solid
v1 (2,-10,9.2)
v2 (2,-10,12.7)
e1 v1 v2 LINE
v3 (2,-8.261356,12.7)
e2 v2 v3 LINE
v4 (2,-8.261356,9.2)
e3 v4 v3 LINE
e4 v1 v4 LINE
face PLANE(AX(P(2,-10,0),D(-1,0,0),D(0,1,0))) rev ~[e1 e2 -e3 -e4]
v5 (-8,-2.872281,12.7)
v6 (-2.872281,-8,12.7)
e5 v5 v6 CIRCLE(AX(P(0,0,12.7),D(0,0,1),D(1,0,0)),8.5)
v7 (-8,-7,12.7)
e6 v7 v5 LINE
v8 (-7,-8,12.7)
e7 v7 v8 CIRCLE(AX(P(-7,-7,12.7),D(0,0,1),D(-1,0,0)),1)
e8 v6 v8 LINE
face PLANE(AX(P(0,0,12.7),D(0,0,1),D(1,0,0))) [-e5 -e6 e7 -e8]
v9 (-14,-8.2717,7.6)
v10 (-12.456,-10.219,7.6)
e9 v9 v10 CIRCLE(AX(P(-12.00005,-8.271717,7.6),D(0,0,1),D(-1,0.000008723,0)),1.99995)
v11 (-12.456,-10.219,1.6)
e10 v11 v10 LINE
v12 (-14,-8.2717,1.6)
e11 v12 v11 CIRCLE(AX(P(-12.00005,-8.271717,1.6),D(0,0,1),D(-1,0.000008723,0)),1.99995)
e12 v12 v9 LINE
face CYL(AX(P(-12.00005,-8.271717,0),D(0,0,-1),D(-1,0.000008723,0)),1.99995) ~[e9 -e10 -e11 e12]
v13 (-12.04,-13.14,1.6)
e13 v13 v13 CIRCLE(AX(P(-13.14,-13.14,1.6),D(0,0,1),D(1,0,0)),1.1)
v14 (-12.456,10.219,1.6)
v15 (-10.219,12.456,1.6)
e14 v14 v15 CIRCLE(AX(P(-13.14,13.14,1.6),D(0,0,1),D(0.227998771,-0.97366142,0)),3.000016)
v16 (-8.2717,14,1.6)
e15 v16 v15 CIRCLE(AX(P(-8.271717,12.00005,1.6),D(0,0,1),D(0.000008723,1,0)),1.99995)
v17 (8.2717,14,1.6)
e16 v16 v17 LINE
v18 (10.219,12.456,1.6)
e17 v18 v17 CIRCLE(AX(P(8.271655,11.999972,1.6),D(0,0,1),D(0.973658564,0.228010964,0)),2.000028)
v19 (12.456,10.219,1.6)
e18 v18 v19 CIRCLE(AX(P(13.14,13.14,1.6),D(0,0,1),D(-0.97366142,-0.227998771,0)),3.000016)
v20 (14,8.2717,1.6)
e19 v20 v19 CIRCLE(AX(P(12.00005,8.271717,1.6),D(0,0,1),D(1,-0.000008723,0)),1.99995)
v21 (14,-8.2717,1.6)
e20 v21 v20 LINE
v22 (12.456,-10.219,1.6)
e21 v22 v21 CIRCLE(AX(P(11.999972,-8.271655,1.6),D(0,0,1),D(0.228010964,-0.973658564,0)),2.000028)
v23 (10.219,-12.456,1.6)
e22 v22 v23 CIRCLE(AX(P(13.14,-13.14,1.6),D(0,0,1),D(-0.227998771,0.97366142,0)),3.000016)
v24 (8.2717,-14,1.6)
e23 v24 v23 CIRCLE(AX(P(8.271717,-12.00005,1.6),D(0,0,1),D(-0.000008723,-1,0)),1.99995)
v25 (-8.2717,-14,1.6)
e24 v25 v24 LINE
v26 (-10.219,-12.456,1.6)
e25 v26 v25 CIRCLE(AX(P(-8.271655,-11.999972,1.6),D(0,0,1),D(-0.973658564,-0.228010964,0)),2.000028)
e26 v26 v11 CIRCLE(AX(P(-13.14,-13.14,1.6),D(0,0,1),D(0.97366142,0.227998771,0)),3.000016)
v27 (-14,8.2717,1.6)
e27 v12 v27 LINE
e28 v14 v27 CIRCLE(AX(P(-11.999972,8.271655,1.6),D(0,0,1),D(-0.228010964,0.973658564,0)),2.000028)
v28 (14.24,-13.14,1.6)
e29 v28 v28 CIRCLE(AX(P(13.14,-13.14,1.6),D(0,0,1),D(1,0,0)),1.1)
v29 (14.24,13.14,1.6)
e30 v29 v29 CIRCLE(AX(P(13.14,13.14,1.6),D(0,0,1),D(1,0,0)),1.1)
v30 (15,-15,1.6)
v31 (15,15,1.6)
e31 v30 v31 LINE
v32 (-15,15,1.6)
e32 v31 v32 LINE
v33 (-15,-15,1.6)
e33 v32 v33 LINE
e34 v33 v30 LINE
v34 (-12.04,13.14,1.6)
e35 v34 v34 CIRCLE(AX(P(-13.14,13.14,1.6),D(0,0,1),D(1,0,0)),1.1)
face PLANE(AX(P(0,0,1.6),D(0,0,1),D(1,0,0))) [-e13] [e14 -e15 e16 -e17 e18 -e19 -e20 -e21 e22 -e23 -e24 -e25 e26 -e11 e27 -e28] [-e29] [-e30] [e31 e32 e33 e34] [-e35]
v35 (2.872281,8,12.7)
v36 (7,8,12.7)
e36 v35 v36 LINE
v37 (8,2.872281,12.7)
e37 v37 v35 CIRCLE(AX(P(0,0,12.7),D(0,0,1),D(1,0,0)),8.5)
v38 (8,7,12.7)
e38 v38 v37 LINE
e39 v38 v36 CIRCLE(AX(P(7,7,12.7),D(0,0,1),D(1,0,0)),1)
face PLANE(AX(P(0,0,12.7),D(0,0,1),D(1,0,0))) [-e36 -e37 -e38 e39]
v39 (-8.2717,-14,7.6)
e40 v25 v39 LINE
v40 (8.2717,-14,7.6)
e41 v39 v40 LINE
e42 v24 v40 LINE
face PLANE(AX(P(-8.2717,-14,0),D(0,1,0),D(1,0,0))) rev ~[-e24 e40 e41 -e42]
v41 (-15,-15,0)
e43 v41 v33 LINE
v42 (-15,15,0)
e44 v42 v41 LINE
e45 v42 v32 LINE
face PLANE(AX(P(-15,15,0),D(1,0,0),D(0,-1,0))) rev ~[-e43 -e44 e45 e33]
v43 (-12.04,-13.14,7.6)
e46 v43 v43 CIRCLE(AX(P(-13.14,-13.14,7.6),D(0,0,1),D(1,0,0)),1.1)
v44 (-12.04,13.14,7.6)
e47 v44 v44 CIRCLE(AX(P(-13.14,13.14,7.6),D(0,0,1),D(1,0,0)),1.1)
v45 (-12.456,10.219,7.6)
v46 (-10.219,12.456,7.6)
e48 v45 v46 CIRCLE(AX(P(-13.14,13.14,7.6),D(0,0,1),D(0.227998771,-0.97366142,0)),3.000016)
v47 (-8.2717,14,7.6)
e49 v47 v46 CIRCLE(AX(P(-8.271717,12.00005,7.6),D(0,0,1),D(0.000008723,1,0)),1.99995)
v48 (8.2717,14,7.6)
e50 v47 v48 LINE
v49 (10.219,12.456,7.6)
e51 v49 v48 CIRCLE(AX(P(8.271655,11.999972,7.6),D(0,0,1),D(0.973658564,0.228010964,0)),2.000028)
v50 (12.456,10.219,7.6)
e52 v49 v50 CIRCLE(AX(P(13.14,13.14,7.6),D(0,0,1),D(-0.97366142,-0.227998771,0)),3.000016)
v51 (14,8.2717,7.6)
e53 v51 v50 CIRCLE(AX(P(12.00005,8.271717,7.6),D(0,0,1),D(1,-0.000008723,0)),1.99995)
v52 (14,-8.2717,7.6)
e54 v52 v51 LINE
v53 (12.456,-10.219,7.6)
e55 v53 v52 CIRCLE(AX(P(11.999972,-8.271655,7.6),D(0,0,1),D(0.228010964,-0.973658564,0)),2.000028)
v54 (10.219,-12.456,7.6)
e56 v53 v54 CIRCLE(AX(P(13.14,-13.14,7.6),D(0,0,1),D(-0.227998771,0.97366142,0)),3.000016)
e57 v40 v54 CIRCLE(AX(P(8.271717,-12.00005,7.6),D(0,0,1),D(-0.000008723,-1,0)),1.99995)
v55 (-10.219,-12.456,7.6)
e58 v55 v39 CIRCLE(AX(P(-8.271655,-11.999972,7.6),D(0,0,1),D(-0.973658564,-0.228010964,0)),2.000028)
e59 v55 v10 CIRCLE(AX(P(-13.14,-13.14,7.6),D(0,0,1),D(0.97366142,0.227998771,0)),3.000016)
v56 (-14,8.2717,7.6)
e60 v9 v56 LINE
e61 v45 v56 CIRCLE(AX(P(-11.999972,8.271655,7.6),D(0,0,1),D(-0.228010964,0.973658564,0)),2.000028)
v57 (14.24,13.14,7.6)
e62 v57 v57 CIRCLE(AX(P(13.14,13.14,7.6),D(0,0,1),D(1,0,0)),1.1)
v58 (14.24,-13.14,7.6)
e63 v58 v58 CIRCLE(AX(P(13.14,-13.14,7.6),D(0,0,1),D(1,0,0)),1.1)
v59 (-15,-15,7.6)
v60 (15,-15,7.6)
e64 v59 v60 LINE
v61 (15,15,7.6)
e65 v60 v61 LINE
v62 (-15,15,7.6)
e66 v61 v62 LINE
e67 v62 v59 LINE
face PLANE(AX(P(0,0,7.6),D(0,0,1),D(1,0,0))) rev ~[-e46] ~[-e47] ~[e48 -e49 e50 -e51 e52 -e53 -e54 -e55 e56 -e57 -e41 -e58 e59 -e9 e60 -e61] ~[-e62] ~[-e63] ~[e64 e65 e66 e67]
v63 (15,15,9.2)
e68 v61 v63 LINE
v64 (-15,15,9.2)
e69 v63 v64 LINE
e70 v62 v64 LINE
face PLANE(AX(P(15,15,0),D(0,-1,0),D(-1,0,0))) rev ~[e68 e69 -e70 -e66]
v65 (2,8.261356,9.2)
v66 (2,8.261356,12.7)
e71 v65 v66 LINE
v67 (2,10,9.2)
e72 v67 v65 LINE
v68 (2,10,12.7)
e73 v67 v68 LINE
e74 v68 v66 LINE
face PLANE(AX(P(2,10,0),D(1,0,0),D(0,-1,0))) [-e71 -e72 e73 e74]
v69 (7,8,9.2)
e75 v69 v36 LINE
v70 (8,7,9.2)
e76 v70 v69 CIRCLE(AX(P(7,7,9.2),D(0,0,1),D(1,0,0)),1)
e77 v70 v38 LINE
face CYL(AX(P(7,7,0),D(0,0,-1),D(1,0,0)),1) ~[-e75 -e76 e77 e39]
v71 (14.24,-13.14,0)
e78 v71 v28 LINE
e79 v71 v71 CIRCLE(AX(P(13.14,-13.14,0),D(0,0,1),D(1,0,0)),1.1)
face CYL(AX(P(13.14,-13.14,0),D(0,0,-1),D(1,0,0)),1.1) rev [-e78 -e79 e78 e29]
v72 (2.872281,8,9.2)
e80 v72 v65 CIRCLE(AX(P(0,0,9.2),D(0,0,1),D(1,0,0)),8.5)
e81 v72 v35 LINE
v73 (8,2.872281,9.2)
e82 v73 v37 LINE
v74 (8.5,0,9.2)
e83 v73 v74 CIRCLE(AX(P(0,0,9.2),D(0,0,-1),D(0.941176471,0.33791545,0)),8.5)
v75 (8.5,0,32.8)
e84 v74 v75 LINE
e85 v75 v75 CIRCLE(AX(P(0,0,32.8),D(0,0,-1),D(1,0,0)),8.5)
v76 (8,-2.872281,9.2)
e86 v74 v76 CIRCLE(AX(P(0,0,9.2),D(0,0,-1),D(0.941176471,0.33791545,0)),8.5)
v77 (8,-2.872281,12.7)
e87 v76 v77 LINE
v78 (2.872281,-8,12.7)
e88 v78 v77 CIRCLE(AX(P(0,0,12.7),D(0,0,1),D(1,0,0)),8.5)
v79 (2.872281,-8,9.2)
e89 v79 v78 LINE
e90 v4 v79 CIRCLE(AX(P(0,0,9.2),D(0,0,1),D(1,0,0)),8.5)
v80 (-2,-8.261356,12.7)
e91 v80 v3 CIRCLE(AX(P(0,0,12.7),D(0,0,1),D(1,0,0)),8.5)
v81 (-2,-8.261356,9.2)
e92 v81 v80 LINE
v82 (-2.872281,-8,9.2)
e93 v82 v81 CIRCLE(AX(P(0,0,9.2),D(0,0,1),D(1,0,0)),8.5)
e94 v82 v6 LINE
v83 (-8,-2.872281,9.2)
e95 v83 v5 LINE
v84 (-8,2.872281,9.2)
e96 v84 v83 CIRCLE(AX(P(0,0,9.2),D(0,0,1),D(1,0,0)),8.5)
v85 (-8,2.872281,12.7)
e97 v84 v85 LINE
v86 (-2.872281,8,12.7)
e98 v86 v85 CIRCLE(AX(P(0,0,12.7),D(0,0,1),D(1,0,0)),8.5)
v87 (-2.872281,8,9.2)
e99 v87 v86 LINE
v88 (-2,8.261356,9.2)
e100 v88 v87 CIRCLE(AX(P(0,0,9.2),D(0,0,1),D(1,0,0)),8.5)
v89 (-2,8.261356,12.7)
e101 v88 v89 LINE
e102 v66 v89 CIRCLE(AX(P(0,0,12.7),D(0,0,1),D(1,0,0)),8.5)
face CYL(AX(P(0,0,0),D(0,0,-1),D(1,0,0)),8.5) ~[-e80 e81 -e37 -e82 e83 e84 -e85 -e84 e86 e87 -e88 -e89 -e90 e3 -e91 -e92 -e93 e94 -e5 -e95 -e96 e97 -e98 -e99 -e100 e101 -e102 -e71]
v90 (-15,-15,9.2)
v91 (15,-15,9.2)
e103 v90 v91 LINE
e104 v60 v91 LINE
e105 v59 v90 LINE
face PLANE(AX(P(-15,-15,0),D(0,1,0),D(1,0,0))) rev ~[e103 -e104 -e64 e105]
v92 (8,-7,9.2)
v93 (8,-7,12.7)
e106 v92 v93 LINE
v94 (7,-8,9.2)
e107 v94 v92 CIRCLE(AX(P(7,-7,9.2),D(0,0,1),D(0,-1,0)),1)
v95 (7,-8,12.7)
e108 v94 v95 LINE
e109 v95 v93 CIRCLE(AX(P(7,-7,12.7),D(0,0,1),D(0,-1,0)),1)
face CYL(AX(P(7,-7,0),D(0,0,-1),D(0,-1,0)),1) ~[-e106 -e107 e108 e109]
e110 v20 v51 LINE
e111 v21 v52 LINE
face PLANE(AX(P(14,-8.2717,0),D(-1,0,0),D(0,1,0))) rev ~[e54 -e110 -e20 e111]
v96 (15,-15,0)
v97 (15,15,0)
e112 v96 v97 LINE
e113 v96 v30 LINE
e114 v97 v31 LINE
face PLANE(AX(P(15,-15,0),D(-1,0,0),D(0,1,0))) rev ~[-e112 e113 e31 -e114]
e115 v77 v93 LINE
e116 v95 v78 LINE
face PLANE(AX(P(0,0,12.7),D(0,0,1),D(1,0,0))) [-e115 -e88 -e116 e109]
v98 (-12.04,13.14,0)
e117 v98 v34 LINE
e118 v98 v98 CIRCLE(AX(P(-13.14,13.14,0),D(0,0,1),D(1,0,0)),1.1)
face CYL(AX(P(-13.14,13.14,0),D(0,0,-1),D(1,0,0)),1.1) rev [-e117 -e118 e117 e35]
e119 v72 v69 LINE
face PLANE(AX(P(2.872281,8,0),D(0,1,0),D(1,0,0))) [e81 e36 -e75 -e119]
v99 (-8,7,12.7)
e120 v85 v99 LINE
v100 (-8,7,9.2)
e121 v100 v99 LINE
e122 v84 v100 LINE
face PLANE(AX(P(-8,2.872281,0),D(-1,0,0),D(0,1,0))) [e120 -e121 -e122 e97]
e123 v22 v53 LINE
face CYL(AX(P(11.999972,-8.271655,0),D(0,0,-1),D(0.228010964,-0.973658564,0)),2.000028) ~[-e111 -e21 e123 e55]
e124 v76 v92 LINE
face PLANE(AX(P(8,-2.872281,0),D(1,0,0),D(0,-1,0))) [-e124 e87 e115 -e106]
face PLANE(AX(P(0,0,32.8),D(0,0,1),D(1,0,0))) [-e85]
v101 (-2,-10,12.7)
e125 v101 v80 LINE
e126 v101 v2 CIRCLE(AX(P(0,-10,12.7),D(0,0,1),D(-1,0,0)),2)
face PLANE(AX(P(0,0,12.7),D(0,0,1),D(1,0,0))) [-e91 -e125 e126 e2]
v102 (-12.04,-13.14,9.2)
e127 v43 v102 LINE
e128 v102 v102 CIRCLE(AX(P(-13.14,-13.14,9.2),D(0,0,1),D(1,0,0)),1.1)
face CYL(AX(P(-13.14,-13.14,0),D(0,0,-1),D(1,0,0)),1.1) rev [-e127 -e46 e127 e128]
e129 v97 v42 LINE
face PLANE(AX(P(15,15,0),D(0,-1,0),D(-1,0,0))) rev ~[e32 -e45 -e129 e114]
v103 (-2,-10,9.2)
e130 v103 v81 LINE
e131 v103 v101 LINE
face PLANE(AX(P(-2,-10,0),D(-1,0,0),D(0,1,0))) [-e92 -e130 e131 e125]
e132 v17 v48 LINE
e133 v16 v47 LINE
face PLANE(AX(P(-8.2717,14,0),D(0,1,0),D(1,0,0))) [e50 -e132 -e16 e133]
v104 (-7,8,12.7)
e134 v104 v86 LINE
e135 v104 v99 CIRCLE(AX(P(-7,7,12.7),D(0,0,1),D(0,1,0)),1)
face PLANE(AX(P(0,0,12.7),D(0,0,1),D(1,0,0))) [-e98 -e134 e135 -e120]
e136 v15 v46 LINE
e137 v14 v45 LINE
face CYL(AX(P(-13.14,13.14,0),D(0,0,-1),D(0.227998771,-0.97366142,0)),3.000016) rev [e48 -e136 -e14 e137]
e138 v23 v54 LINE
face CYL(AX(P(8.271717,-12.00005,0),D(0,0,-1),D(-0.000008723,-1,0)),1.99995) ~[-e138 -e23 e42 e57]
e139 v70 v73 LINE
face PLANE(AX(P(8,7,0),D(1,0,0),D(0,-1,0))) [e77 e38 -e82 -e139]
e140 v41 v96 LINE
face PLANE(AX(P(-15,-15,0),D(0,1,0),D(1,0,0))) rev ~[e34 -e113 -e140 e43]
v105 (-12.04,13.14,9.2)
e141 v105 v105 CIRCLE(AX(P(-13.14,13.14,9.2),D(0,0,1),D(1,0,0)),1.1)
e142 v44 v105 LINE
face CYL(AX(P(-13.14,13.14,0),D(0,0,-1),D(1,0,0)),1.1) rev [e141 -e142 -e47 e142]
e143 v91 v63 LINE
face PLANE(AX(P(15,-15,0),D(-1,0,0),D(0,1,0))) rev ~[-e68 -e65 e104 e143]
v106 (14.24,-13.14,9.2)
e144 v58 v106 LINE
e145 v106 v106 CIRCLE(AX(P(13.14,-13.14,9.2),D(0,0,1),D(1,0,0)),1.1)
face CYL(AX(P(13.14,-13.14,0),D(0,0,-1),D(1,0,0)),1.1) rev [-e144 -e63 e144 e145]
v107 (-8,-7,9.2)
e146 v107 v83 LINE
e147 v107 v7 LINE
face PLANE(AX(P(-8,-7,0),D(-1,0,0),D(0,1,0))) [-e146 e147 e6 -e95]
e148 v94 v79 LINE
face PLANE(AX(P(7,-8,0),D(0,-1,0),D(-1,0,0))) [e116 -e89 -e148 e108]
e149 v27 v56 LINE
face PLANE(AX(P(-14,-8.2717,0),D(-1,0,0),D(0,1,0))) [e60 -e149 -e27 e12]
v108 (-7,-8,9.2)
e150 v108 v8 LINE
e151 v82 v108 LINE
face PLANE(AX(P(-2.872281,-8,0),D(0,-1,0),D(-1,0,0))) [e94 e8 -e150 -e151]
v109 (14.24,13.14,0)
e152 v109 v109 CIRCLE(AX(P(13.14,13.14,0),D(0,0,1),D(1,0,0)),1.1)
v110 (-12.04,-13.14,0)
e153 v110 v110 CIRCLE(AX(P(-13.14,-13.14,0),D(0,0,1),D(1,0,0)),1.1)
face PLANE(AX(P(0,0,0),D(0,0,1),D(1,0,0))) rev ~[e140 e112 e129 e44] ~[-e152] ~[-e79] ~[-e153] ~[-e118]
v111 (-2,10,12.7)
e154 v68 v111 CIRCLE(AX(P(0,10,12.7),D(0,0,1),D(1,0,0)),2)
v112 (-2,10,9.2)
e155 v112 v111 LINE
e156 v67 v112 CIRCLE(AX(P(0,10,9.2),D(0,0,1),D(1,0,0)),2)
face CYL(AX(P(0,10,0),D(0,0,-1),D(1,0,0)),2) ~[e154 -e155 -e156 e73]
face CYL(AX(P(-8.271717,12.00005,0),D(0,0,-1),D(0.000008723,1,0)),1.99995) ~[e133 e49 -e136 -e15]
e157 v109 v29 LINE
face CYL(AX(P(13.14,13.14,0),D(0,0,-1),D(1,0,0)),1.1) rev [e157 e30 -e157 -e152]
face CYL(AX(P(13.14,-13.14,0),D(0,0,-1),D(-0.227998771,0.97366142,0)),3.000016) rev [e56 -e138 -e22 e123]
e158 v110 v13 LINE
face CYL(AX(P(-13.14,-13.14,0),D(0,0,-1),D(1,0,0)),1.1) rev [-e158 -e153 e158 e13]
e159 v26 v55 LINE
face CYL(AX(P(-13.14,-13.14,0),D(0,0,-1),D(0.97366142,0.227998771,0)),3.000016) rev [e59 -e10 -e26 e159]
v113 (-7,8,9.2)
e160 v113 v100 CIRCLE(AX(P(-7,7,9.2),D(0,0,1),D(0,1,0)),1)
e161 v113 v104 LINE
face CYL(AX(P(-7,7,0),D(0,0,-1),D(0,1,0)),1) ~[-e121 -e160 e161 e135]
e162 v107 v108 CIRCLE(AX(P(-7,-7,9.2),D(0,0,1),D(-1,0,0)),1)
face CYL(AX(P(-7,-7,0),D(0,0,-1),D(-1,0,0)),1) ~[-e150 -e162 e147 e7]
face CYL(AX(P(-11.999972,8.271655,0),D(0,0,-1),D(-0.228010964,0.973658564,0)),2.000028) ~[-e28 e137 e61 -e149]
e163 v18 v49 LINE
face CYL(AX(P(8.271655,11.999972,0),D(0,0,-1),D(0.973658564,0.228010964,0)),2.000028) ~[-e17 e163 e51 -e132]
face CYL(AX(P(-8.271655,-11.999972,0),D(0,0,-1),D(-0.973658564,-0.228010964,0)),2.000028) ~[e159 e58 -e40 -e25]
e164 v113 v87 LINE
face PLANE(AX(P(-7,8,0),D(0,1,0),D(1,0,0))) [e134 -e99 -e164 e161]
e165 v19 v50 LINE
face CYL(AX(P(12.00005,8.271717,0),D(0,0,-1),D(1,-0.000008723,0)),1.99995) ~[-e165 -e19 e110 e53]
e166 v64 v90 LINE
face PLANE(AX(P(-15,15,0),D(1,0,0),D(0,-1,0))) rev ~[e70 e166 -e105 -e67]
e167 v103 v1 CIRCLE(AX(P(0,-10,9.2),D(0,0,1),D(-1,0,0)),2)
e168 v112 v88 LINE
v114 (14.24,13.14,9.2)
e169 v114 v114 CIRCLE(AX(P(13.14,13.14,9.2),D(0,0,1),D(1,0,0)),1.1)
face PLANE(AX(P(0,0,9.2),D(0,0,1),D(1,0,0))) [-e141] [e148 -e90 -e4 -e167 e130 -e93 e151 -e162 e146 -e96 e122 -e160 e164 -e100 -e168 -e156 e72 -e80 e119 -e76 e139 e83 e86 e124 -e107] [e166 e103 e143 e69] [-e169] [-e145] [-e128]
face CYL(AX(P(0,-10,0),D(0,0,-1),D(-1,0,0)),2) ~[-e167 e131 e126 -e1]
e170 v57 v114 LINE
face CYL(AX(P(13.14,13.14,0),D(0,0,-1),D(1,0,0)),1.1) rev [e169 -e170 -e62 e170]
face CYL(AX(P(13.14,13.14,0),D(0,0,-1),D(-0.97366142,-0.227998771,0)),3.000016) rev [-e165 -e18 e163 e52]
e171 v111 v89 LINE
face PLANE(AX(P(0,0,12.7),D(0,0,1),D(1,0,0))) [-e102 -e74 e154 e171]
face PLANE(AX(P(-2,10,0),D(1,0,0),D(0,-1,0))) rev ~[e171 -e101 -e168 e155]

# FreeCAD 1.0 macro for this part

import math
import FreeCAD as App
import Part
import Sketcher

V = App.Vector
Q = App.Units.Quantity


def add_polygon(sketch, points):
    """Adds a closed chain of lines whose ends are joined by coincident constraints."""
    first, n = sketch.GeometryCount, len(points)
    for a, b in zip(points, points[1:] + points[:1]):
        sketch.addGeometry(Part.LineSegment(App.Vector(*a, 0), App.Vector(*b, 0)), False)
    for i in range(n):
        sketch.addConstraint(Sketcher.Constraint("Coincident", first + i, 2, first + (i + 1) % n, 1))

doc = App.newDocument("Part")
body = doc.addObject("PartDesign::Body", "Body")

sketch1 = doc.addObject("Sketcher::SketchObject", "Sketch")
body.addObject(sketch1)
sketch1.AttachmentSupport = (doc.XY_Plane, [""])
sketch1.MapMode = "FlatFace"
add_polygon(sketch1, [(-15, 15), (-15, -15), (15, -15), (15, 15)])
sketch1.addGeometry(Part.Circle(V(-13.1, -13.1, 0), V(0, 0, 1), 1.1), False)
sketch1.addGeometry(Part.Circle(V(13.1, -13.1, 0), V(0, 0, 1), 1.1), False)
sketch1.addGeometry(Part.Circle(V(-13.1, 13.1, 0), V(0, 0, 1), 1.1), False)
sketch1.addGeometry(Part.Circle(V(13.1, 13.1, 0), V(0, 0, 1), 1.1), False)
sketch1.addGeometry(Part.LineSegment(V(-7, 8, 0), V(-2.9, 8, 0)), False)
sketch1.addGeometry(Part.ArcOfCircle(Part.Circle(V(0, 0, 0), V(0, 0, 1), 8.5), math.radians(103.61), math.radians(109.75)), False)
sketch1.addGeometry(Part.LineSegment(V(-2, 8.3, 0), V(-2, 10, 0)), False)
sketch1.addGeometry(Part.ArcOfCircle(Part.Circle(V(0, 10, 0), V(0, 0, 1), 2), math.radians(0), math.radians(180)), False)
sketch1.addGeometry(Part.LineSegment(V(2, 10, 0), V(2, 8.3, 0)), False)
sketch1.addGeometry(Part.ArcOfCircle(Part.Circle(V(0, 0, 0), V(0, 0, 1), 8.5), math.radians(70.25), math.radians(76.39)), False)
sketch1.addGeometry(Part.LineSegment(V(2.9, 8, 0), V(7, 8, 0)), False)
sketch1.addGeometry(Part.ArcOfCircle(Part.Circle(V(7, 7, 0), V(0, 0, 1), 1), math.radians(0), math.radians(90)), False)
sketch1.addGeometry(Part.LineSegment(V(8, 7, 0), V(8, 2.9, 0)), False)
sketch1.addGeometry(Part.ArcOfCircle(Part.Circle(V(0, 0, 0), V(0, 0, 1), 8.5), math.radians(-20), math.radians(20)), False)
sketch1.addGeometry(Part.LineSegment(V(8, -2.9, 0), V(8, -7, 0)), False)
sketch1.addGeometry(Part.ArcOfCircle(Part.Circle(V(7, -7, 0), V(0, 0, 1), 1), math.radians(-90), math.radians(0)), False)
sketch1.addGeometry(Part.LineSegment(V(7, -8, 0), V(2.9, -8, 0)), False)
sketch1.addGeometry(Part.ArcOfCircle(Part.Circle(V(0, 0, 0), V(0, 0, 1), 8.5), math.radians(-76.39), math.radians(-70.25)), False)
sketch1.addGeometry(Part.LineSegment(V(2, -8.3, 0), V(2, -10, 0)), False)
sketch1.addGeometry(Part.ArcOfCircle(Part.Circle(V(0, -10, 0), V(0, 0, 1), 2), math.radians(180), math.radians(360)), False)
sketch1.addGeometry(Part.LineSegment(V(-2, -10, 0), V(-2, -8.3, 0)), False)
sketch1.addGeometry(Part.ArcOfCircle(Part.Circle(V(0, 0, 0), V(0, 0, 1), 8.5), math.radians(-109.75), math.radians(-103.61)), False)
sketch1.addGeometry(Part.LineSegment(V(-2.9, -8, 0), V(-7, -8, 0)), False)
sketch1.addGeometry(Part.ArcOfCircle(Part.Circle(V(-7, -7, 0), V(0, 0, 1), 1), math.radians(180), math.radians(270)), False)
sketch1.addGeometry(Part.LineSegment(V(-8, -7, 0), V(-8, -2.9, 0)), False)
sketch1.addGeometry(Part.ArcOfCircle(Part.Circle(V(0, 0, 0), V(0, 0, 1), 8.5), math.radians(160), math.radians(200)), False)
sketch1.addGeometry(Part.LineSegment(V(-8, 2.9, 0), V(-8, 7, 0)), False)
sketch1.addGeometry(Part.ArcOfCircle(Part.Circle(V(-7, 7, 0), V(0, 0, 1), 1), math.radians(90), math.radians(180)), False)
sketch1.addConstraint(Sketcher.Constraint("Coincident", 8, 2, 9, 2))
sketch1.addConstraint(Sketcher.Constraint("Coincident", 9, 1, 10, 1))
sketch1.addConstraint(Sketcher.Constraint("Tangent", 10, 2, 11, 2))
sketch1.addConstraint(Sketcher.Constraint("Tangent", 11, 1, 12, 1))
sketch1.addConstraint(Sketcher.Constraint("Coincident", 12, 2, 13, 2))
sketch1.addConstraint(Sketcher.Constraint("Coincident", 13, 1, 14, 1))
sketch1.addConstraint(Sketcher.Constraint("Tangent", 14, 2, 15, 2))
sketch1.addConstraint(Sketcher.Constraint("Tangent", 15, 1, 16, 1))
sketch1.addConstraint(Sketcher.Constraint("Coincident", 16, 2, 17, 2))
sketch1.addConstraint(Sketcher.Constraint("Coincident", 17, 1, 18, 1))
sketch1.addConstraint(Sketcher.Constraint("Tangent", 18, 2, 19, 2))
sketch1.addConstraint(Sketcher.Constraint("Tangent", 19, 1, 20, 1))
sketch1.addConstraint(Sketcher.Constraint("Coincident", 20, 2, 21, 2))
sketch1.addConstraint(Sketcher.Constraint("Coincident", 21, 1, 22, 1))
sketch1.addConstraint(Sketcher.Constraint("Tangent", 22, 2, 23, 2))
sketch1.addConstraint(Sketcher.Constraint("Tangent", 23, 1, 24, 1))
sketch1.addConstraint(Sketcher.Constraint("Coincident", 24, 2, 25, 2))
sketch1.addConstraint(Sketcher.Constraint("Coincident", 25, 1, 26, 1))
sketch1.addConstraint(Sketcher.Constraint("Tangent", 26, 2, 27, 2))
sketch1.addConstraint(Sketcher.Constraint("Tangent", 27, 1, 28, 1))
sketch1.addConstraint(Sketcher.Constraint("Coincident", 28, 2, 29, 2))
sketch1.addConstraint(Sketcher.Constraint("Coincident", 29, 1, 30, 1))
sketch1.addConstraint(Sketcher.Constraint("Tangent", 30, 2, 31, 2))
sketch1.addConstraint(Sketcher.Constraint("Tangent", 31, 1, 8, 1))
sketch1.addConstraint(Sketcher.Constraint("Vertical", 0))
sketch1.addConstraint(Sketcher.Constraint("Horizontal", 1))
sketch1.addConstraint(Sketcher.Constraint("Vertical", 2))
sketch1.addConstraint(Sketcher.Constraint("Horizontal", 3))
sketch1.addConstraint(Sketcher.Constraint("Horizontal", 8))
sketch1.addConstraint(Sketcher.Constraint("Vertical", 10))
sketch1.addConstraint(Sketcher.Constraint("Vertical", 12))
sketch1.addConstraint(Sketcher.Constraint("Horizontal", 14))
sketch1.addConstraint(Sketcher.Constraint("Vertical", 16))
sketch1.addConstraint(Sketcher.Constraint("Vertical", 18))
sketch1.addConstraint(Sketcher.Constraint("Horizontal", 20))
sketch1.addConstraint(Sketcher.Constraint("Vertical", 22))
sketch1.addConstraint(Sketcher.Constraint("Vertical", 24))
sketch1.addConstraint(Sketcher.Constraint("Horizontal", 26))
sketch1.addConstraint(Sketcher.Constraint("Vertical", 28))
sketch1.addConstraint(Sketcher.Constraint("Vertical", 30))
sketch1.addConstraint(Sketcher.Constraint("Coincident", 9, 3, -1, 1))
sketch1.addConstraint(Sketcher.Constraint("Coincident", 13, 3, -1, 1))
sketch1.addConstraint(Sketcher.Constraint("Coincident", 17, 3, -1, 1))
sketch1.addConstraint(Sketcher.Constraint("Coincident", 21, 3, -1, 1))
sketch1.addConstraint(Sketcher.Constraint("Coincident", 25, 3, -1, 1))
sketch1.addConstraint(Sketcher.Constraint("Coincident", 29, 3, -1, 1))
sketch1.addConstraint(Sketcher.Constraint("Equal", 4, 5))
sketch1.addConstraint(Sketcher.Constraint("Equal", 5, 6))
sketch1.addConstraint(Sketcher.Constraint("Equal", 6, 7))
sketch1.addConstraint(Sketcher.Constraint("Equal", 9, 13))
sketch1.addConstraint(Sketcher.Constraint("Equal", 13, 17))
sketch1.addConstraint(Sketcher.Constraint("Equal", 15, 19))
sketch1.addConstraint(Sketcher.Constraint("Equal", 17, 21))
sketch1.addConstraint(Sketcher.Constraint("Equal", 11, 23))
sketch1.addConstraint(Sketcher.Constraint("Equal", 21, 25))
sketch1.addConstraint(Sketcher.Constraint("Equal", 19, 27))
sketch1.addConstraint(Sketcher.Constraint("Equal", 25, 29))
sketch1.addConstraint(Sketcher.Constraint("Equal", 27, 31))
sketch1.addConstraint(Sketcher.Constraint("Symmetric", 5, 3, 6, 3, -1, 1))
sketch1.addConstraint(Sketcher.Constraint("Symmetric", 4, 3, 7, 3, -1, 1))
sketch1.addConstraint(Sketcher.Constraint("Symmetric", 11, 3, 23, 3, -1, 1))
sketch1.addConstraint(Sketcher.Constraint("Symmetric", 15, 3, 27, 3, -1, 1))
sketch1.addConstraint(Sketcher.Constraint("Symmetric", 19, 3, 31, 3, -1, 1))
sketch1.addConstraint(Sketcher.Constraint("Symmetric", 0, 2, 2, 2, -1, 1))
sketch1.addConstraint(Sketcher.Constraint("Symmetric", 4, 3, 5, 3, -2))
sketch1.addConstraint(Sketcher.Constraint("Symmetric", 19, 3, 27, 3, -2))
sketch1.addConstraint(Sketcher.Constraint("PointOnObject", 11, 3, -2))
sketch1.addConstraint(Sketcher.Constraint("Equal", 3, 0))
sketch1.addConstraint(Sketcher.Constraint("Equal", 26, 16))
sketch1.addConstraint(Sketcher.Constraint("Radius", 11, Q("2 mm")))
sketch1.addConstraint(Sketcher.Constraint("Radius", 15, Q("1 mm")))
sketch1.addConstraint(Sketcher.Constraint("Diameter", 4, Q("2.2 mm")))
sketch1.addConstraint(Sketcher.Constraint("Radius", 9, Q("8.5 mm")))
sketch1.addConstraint(Sketcher.Constraint("DistanceX", 1, 1, 1, 2, Q("30 mm")))
sketch1.addConstraint(Sketcher.Constraint("DistanceY", 15, 3, 11, 3, Q("3 mm")))
sketch1.addConstraint(Sketcher.Constraint("DistanceX", 4, 3, 5, 3, Q("26.28 mm")))
sketch1.addConstraint(Sketcher.Constraint("DistanceY", 4, 3, 6, 3, Q("26.28 mm")))
sketch1.addConstraint(Sketcher.Constraint("DistanceY", -1, 1, 11, 3, Q("10 mm")))
pad1 = doc.addObject("PartDesign::Pad", "Pad")
body.addObject(pad1)
pad1.Profile = sketch1
pad1.Length = 9.2

sketch2 = doc.addObject("Sketcher::SketchObject", "Sketch001")
body.addObject(sketch2)
sketch2.AttachmentSupport = (doc.XY_Plane, [""])
sketch2.MapMode = "FlatFace"
add_polygon(sketch2, [(-15, 15), (-15, -15), (15, -15), (15, 15)])
sketch2.addGeometry(Part.Circle(V(-13.1, -13.1, 0), V(0, 0, 1), 1.1), False)
sketch2.addGeometry(Part.Circle(V(13.1, -13.1, 0), V(0, 0, 1), 1.1), False)
sketch2.addGeometry(Part.Circle(V(-13.1, 13.1, 0), V(0, 0, 1), 1.1), False)
sketch2.addGeometry(Part.ArcOfCircle(Part.Circle(V(-8.3, -12, 0), V(0, 0, 1), 2), math.radians(-167), math.radians(-90)), False)
sketch2.addGeometry(Part.ArcOfCircle(Part.Circle(V(-13.1, -13.1, 0), V(0, 0, 1), 3), math.radians(13), math.radians(77)), False)
sketch2.addGeometry(Part.ArcOfCircle(Part.Circle(V(-12, -8.3, 0), V(0, 0, 1), 2), math.radians(180), math.radians(257)), False)
sketch2.addGeometry(Part.LineSegment(V(-14, -8.3, 0), V(-14, 8.3, 0)), False)
sketch2.addGeometry(Part.ArcOfCircle(Part.Circle(V(-12, 8.3, 0), V(0, 0, 1), 2), math.radians(103), math.radians(180)), False)
sketch2.addGeometry(Part.ArcOfCircle(Part.Circle(V(-13.1, 13.1, 0), V(0, 0, 1), 3), math.radians(-77), math.radians(-13)), False)
sketch2.addGeometry(Part.ArcOfCircle(Part.Circle(V(-8.3, 12, 0), V(0, 0, 1), 2), math.radians(90), math.radians(167)), False)
sketch2.addGeometry(Part.LineSegment(V(-8.3, 14, 0), V(8.3, 14, 0)), False)
sketch2.addGeometry(Part.ArcOfCircle(Part.Circle(V(8.3, 12, 0), V(0, 0, 1), 2), math.radians(13), math.radians(90)), False)
sketch2.addGeometry(Part.ArcOfCircle(Part.Circle(V(13.1, 13.1, 0), V(0, 0, 1), 3), math.radians(-167), math.radians(-103)), False)
sketch2.addGeometry(Part.ArcOfCircle(Part.Circle(V(12, 8.3, 0), V(0, 0, 1), 2), math.radians(0), math.radians(77)), False)
sketch2.addGeometry(Part.LineSegment(V(14, 8.3, 0), V(14, -8.3, 0)), False)
sketch2.addGeometry(Part.ArcOfCircle(Part.Circle(V(12, -8.3, 0), V(0, 0, 1), 2), math.radians(-77), math.radians(0)), False)
sketch2.addGeometry(Part.ArcOfCircle(Part.Circle(V(13.1, -13.1, 0), V(0, 0, 1), 3), math.radians(103), math.radians(167)), False)
sketch2.addGeometry(Part.ArcOfCircle(Part.Circle(V(8.3, -12, 0), V(0, 0, 1), 2), math.radians(-90), math.radians(-13)), False)
sketch2.addGeometry(Part.LineSegment(V(8.3, -14, 0), V(-8.3, -14, 0)), False)
sketch2.addGeometry(Part.Circle(V(13.1, 13.1, 0), V(0, 0, 1), 1.1), False)
sketch2.addConstraint(Sketcher.Constraint("Tangent", 7, 1, 8, 1))
sketch2.addConstraint(Sketcher.Constraint("Tangent", 8, 2, 9, 2))
sketch2.addConstraint(Sketcher.Constraint("Tangent", 9, 1, 10, 1))
sketch2.addConstraint(Sketcher.Constraint("Tangent", 10, 2, 11, 2))
sketch2.addConstraint(Sketcher.Constraint("Tangent", 11, 1, 12, 1))
sketch2.addConstraint(Sketcher.Constraint("Tangent", 12, 2, 13, 2))
sketch2.addConstraint(Sketcher.Constraint("Tangent", 13, 1, 14, 1))
sketch2.addConstraint(Sketcher.Constraint("Tangent", 14, 2, 15, 2))
sketch2.addConstraint(Sketcher.Constraint("Tangent", 15, 1, 16, 1))
sketch2.addConstraint(Sketcher.Constraint("Tangent", 16, 2, 17, 2))
sketch2.addConstraint(Sketcher.Constraint("Tangent", 17, 1, 18, 1))
sketch2.addConstraint(Sketcher.Constraint("Tangent", 18, 2, 19, 2))
sketch2.addConstraint(Sketcher.Constraint("Tangent", 19, 1, 20, 1))
sketch2.addConstraint(Sketcher.Constraint("Tangent", 20, 2, 21, 2))
sketch2.addConstraint(Sketcher.Constraint("Tangent", 21, 1, 22, 1))
sketch2.addConstraint(Sketcher.Constraint("Tangent", 22, 2, 7, 2))
sketch2.addConstraint(Sketcher.Constraint("Vertical", 0))
sketch2.addConstraint(Sketcher.Constraint("Horizontal", 1))
sketch2.addConstraint(Sketcher.Constraint("Vertical", 2))
sketch2.addConstraint(Sketcher.Constraint("Horizontal", 3))
sketch2.addConstraint(Sketcher.Constraint("Vertical", 10))
sketch2.addConstraint(Sketcher.Constraint("Horizontal", 14))
sketch2.addConstraint(Sketcher.Constraint("Vertical", 18))
sketch2.addConstraint(Sketcher.Constraint("Horizontal", 22))
sketch2.addConstraint(Sketcher.Constraint("Coincident", 8, 3, 4, 3))
sketch2.addConstraint(Sketcher.Constraint("Coincident", 12, 3, 6, 3))
sketch2.addConstraint(Sketcher.Constraint("Coincident", 20, 3, 5, 3))
sketch2.addConstraint(Sketcher.Constraint("Coincident", 23, 3, 16, 3))
sketch2.addConstraint(Sketcher.Constraint("Equal", 4, 5))
sketch2.addConstraint(Sketcher.Constraint("Equal", 5, 6))
sketch2.addConstraint(Sketcher.Constraint("Equal", 7, 9))
sketch2.addConstraint(Sketcher.Constraint("Equal", 9, 11))
sketch2.addConstraint(Sketcher.Constraint("Equal", 8, 12))
sketch2.addConstraint(Sketcher.Constraint("Equal", 11, 13))
sketch2.addConstraint(Sketcher.Constraint("Equal", 13, 15))
sketch2.addConstraint(Sketcher.Constraint("Equal", 12, 16))
sketch2.addConstraint(Sketcher.Constraint("Equal", 15, 17))
sketch2.addConstraint(Sketcher.Constraint("Equal", 17, 19))
sketch2.addConstraint(Sketcher.Constraint("Equal", 16, 20))
sketch2.addConstraint(Sketcher.Constraint("Equal", 19, 21))
sketch2.addConstraint(Sketcher.Constraint("Equal", 6, 23))
sketch2.addConstraint(Sketcher.Constraint("Symmetric", 5, 3, 6, 3, -1, 1))
sketch2.addConstraint(Sketcher.Constraint("Symmetric", 7, 3, 15, 3, -1, 1))
sketch2.addConstraint(Sketcher.Constraint("Symmetric", 9, 3, 17, 3, -1, 1))
sketch2.addConstraint(Sketcher.Constraint("Symmetric", 0, 2, 2, 2, -1, 1))
sketch2.addConstraint(Sketcher.Constraint("Symmetric", 4, 3, 5, 3, -2))
sketch2.addConstraint(Sketcher.Constraint("Equal", 3, 0))
sketch2.addConstraint(Sketcher.Constraint("Equal", 22, 10))
sketch2.addConstraint(Sketcher.Constraint("Radius", 7, Q("2 mm")))
sketch2.addConstraint(Sketcher.Constraint("Radius", 8, Q("3 mm")))
sketch2.addConstraint(Sketcher.Constraint("Diameter", 4, Q("2.2 mm")))
sketch2.addConstraint(Sketcher.Constraint("DistanceX", 1, 1, 1, 2, Q("30 mm")))
sketch2.addConstraint(Sketcher.Constraint("DistanceY", 0, 2, 7, 3, Q("3 mm")))
sketch2.addConstraint(Sketcher.Constraint("DistanceX", 0, 2, 9, 3, Q("3 mm")))
sketch2.addConstraint(Sketcher.Constraint("DistanceX", 4, 3, 5, 3, Q("26.28 mm")))
pocket1 = doc.addObject("PartDesign::Pocket", "Pocket")
body.addObject(pocket1)
pocket1.Profile = sketch2
pocket1.Length = 7.6
pocket1.Reversed = True

sketch3 = doc.addObject("Sketcher::SketchObject", "Sketch002")
body.addObject(sketch3)
sketch3.AttachmentSupport = (doc.XY_Plane, [""])
sketch3.MapMode = "FlatFace"
add_polygon(sketch3, [(-15, 15), (-15, -15), (15, -15), (15, 15)])
sketch3.addGeometry(Part.Circle(V(-13.1, -13.1, 0), V(0, 0, 1), 1.1), False)
sketch3.addGeometry(Part.Circle(V(13.1, -13.1, 0), V(0, 0, 1), 1.1), False)
sketch3.addGeometry(Part.Circle(V(-13.1, 13.1, 0), V(0, 0, 1), 1.1), False)
sketch3.addGeometry(Part.ArcOfCircle(Part.Circle(V(-8.3, -12, 0), V(0, 0, 1), 2), math.radians(-167), math.radians(-90)), False)
sketch3.addGeometry(Part.ArcOfCircle(Part.Circle(V(-13.1, -13.1, 0), V(0, 0, 1), 3), math.radians(13), math.radians(77)), False)
sketch3.addGeometry(Part.ArcOfCircle(Part.Circle(V(-12, -8.3, 0), V(0, 0, 1), 2), math.radians(180), math.radians(257)), False)
sketch3.addGeometry(Part.LineSegment(V(-14, -8.3, 0), V(-14, 8.3, 0)), False)
sketch3.addGeometry(Part.ArcOfCircle(Part.Circle(V(-12, 8.3, 0), V(0, 0, 1), 2), math.radians(103), math.radians(180)), False)
sketch3.addGeometry(Part.ArcOfCircle(Part.Circle(V(-13.1, 13.1, 0), V(0, 0, 1), 3), math.radians(-77), math.radians(-13)), False)
sketch3.addGeometry(Part.ArcOfCircle(Part.Circle(V(-8.3, 12, 0), V(0, 0, 1), 2), math.radians(90), math.radians(167)), False)
sketch3.addGeometry(Part.LineSegment(V(-8.3, 14, 0), V(8.3, 14, 0)), False)
sketch3.addGeometry(Part.ArcOfCircle(Part.Circle(V(8.3, 12, 0), V(0, 0, 1), 2), math.radians(13), math.radians(90)), False)
sketch3.addGeometry(Part.ArcOfCircle(Part.Circle(V(13.1, 13.1, 0), V(0, 0, 1), 3), math.radians(-167), math.radians(-103)), False)
sketch3.addGeometry(Part.ArcOfCircle(Part.Circle(V(12, 8.3, 0), V(0, 0, 1), 2), math.radians(0), math.radians(77)), False)
sketch3.addGeometry(Part.LineSegment(V(14, 8.3, 0), V(14, -8.3, 0)), False)
sketch3.addGeometry(Part.ArcOfCircle(Part.Circle(V(12, -8.3, 0), V(0, 0, 1), 2), math.radians(-77), math.radians(0)), False)
sketch3.addGeometry(Part.ArcOfCircle(Part.Circle(V(13.1, -13.1, 0), V(0, 0, 1), 3), math.radians(103), math.radians(167)), False)
sketch3.addGeometry(Part.ArcOfCircle(Part.Circle(V(8.3, -12, 0), V(0, 0, 1), 2), math.radians(-90), math.radians(-13)), False)
sketch3.addGeometry(Part.LineSegment(V(8.3, -14, 0), V(-8.3, -14, 0)), False)
sketch3.addGeometry(Part.Circle(V(13.1, 13.1, 0), V(0, 0, 1), 1.1), False)
sketch3.addConstraint(Sketcher.Constraint("Tangent", 7, 1, 8, 1))
sketch3.addConstraint(Sketcher.Constraint("Tangent", 8, 2, 9, 2))
sketch3.addConstraint(Sketcher.Constraint("Tangent", 9, 1, 10, 1))
sketch3.addConstraint(Sketcher.Constraint("Tangent", 10, 2, 11, 2))
sketch3.addConstraint(Sketcher.Constraint("Tangent", 11, 1, 12, 1))
sketch3.addConstraint(Sketcher.Constraint("Tangent", 12, 2, 13, 2))
sketch3.addConstraint(Sketcher.Constraint("Tangent", 13, 1, 14, 1))
sketch3.addConstraint(Sketcher.Constraint("Tangent", 14, 2, 15, 2))
sketch3.addConstraint(Sketcher.Constraint("Tangent", 15, 1, 16, 1))
sketch3.addConstraint(Sketcher.Constraint("Tangent", 16, 2, 17, 2))
sketch3.addConstraint(Sketcher.Constraint("Tangent", 17, 1, 18, 1))
sketch3.addConstraint(Sketcher.Constraint("Tangent", 18, 2, 19, 2))
sketch3.addConstraint(Sketcher.Constraint("Tangent", 19, 1, 20, 1))
sketch3.addConstraint(Sketcher.Constraint("Tangent", 20, 2, 21, 2))
sketch3.addConstraint(Sketcher.Constraint("Tangent", 21, 1, 22, 1))
sketch3.addConstraint(Sketcher.Constraint("Tangent", 22, 2, 7, 2))
sketch3.addConstraint(Sketcher.Constraint("Vertical", 0))
sketch3.addConstraint(Sketcher.Constraint("Horizontal", 1))
sketch3.addConstraint(Sketcher.Constraint("Vertical", 2))
sketch3.addConstraint(Sketcher.Constraint("Horizontal", 3))
sketch3.addConstraint(Sketcher.Constraint("Vertical", 10))
sketch3.addConstraint(Sketcher.Constraint("Horizontal", 14))
sketch3.addConstraint(Sketcher.Constraint("Vertical", 18))
sketch3.addConstraint(Sketcher.Constraint("Horizontal", 22))
sketch3.addConstraint(Sketcher.Constraint("Coincident", 8, 3, 4, 3))
sketch3.addConstraint(Sketcher.Constraint("Coincident", 12, 3, 6, 3))
sketch3.addConstraint(Sketcher.Constraint("Coincident", 20, 3, 5, 3))
sketch3.addConstraint(Sketcher.Constraint("Coincident", 23, 3, 16, 3))
sketch3.addConstraint(Sketcher.Constraint("Equal", 4, 5))
sketch3.addConstraint(Sketcher.Constraint("Equal", 5, 6))
sketch3.addConstraint(Sketcher.Constraint("Equal", 7, 9))
sketch3.addConstraint(Sketcher.Constraint("Equal", 9, 11))
sketch3.addConstraint(Sketcher.Constraint("Equal", 8, 12))
sketch3.addConstraint(Sketcher.Constraint("Equal", 11, 13))
sketch3.addConstraint(Sketcher.Constraint("Equal", 13, 15))
sketch3.addConstraint(Sketcher.Constraint("Equal", 12, 16))
sketch3.addConstraint(Sketcher.Constraint("Equal", 15, 17))
sketch3.addConstraint(Sketcher.Constraint("Equal", 17, 19))
sketch3.addConstraint(Sketcher.Constraint("Equal", 16, 20))
sketch3.addConstraint(Sketcher.Constraint("Equal", 19, 21))
sketch3.addConstraint(Sketcher.Constraint("Equal", 6, 23))
sketch3.addConstraint(Sketcher.Constraint("Symmetric", 5, 3, 6, 3, -1, 1))
sketch3.addConstraint(Sketcher.Constraint("Symmetric", 7, 3, 15, 3, -1, 1))
sketch3.addConstraint(Sketcher.Constraint("Symmetric", 9, 3, 17, 3, -1, 1))
sketch3.addConstraint(Sketcher.Constraint("Symmetric", 0, 2, 2, 2, -1, 1))
sketch3.addConstraint(Sketcher.Constraint("Symmetric", 4, 3, 5, 3, -2))
sketch3.addConstraint(Sketcher.Constraint("Equal", 3, 0))
sketch3.addConstraint(Sketcher.Constraint("Equal", 22, 10))
sketch3.addConstraint(Sketcher.Constraint("Radius", 7, Q("2 mm")))
sketch3.addConstraint(Sketcher.Constraint("Radius", 8, Q("3 mm")))
sketch3.addConstraint(Sketcher.Constraint("Diameter", 4, Q("2.2 mm")))
sketch3.addConstraint(Sketcher.Constraint("DistanceX", 1, 1, 1, 2, Q("30 mm")))
sketch3.addConstraint(Sketcher.Constraint("DistanceY", 0, 2, 7, 3, Q("3 mm")))
sketch3.addConstraint(Sketcher.Constraint("DistanceX", 0, 2, 9, 3, Q("3 mm")))
sketch3.addConstraint(Sketcher.Constraint("DistanceX", 4, 3, 5, 3, Q("26.28 mm")))
pad2 = doc.addObject("PartDesign::Pad", "Pad001")
body.addObject(pad2)
pad2.Profile = sketch3
pad2.Length = 1.6

sketch4 = doc.addObject("Sketcher::SketchObject", "Sketch003")
body.addObject(sketch4)
sketch4.AttachmentSupport = (doc.XY_Plane, [""])
sketch4.MapMode = "FlatFace"
sketch4.addGeometry(Part.ArcOfCircle(Part.Circle(V(0, 0, 0), V(0, 0, 1), 8.5), math.radians(20), math.radians(70)), False)
sketch4.addGeometry(Part.LineSegment(V(8, 2.9, 0), V(8, 7, 0)), False)
sketch4.addGeometry(Part.ArcOfCircle(Part.Circle(V(7, 7, 0), V(0, 0, 1), 1), math.radians(0), math.radians(90)), False)
sketch4.addGeometry(Part.LineSegment(V(7, 8, 0), V(2.9, 8, 0)), False)
sketch4.addGeometry(Part.LineSegment(V(8, -7, 0), V(8, -2.9, 0)), False)
sketch4.addGeometry(Part.ArcOfCircle(Part.Circle(V(0, 0, 0), V(0, 0, 1), 8.5), math.radians(-70), math.radians(-20)), False)
sketch4.addGeometry(Part.LineSegment(V(2.9, -8, 0), V(7, -8, 0)), False)
sketch4.addGeometry(Part.ArcOfCircle(Part.Circle(V(7, -7, 0), V(0, 0, 1), 1), math.radians(-90), math.radians(0)), False)
sketch4.addGeometry(Part.ArcOfCircle(Part.Circle(V(0, 0, 0), V(0, 0, 1), 8.5), math.radians(76), math.radians(104)), False)
sketch4.addGeometry(Part.LineSegment(V(2, 8.3, 0), V(2, 10, 0)), False)
sketch4.addGeometry(Part.ArcOfCircle(Part.Circle(V(0, 10, 0), V(0, 0, 1), 2), math.radians(0), math.radians(180)), False)
sketch4.addGeometry(Part.LineSegment(V(-2, 10, 0), V(-2, 8.3, 0)), False)
sketch4.addGeometry(Part.LineSegment(V(2, -10, 0), V(2, -8.3, 0)), False)
sketch4.addGeometry(Part.ArcOfCircle(Part.Circle(V(0, 0, 0), V(0, 0, 1), 8.5), math.radians(-104), math.radians(-76)), False)
sketch4.addGeometry(Part.LineSegment(V(-2, -8.3, 0), V(-2, -10, 0)), False)
sketch4.addGeometry(Part.ArcOfCircle(Part.Circle(V(0, -10, 0), V(0, 0, 1), 2), math.radians(180), math.radians(360)), False)
sketch4.addGeometry(Part.ArcOfCircle(Part.Circle(V(0, 0, 0), V(0, 0, 1), 8.5), math.radians(110), math.radians(160)), False)
sketch4.addGeometry(Part.LineSegment(V(-2.9, 8, 0), V(-7, 8, 0)), False)
sketch4.addGeometry(Part.ArcOfCircle(Part.Circle(V(-7, 7, 0), V(0, 0, 1), 1), math.radians(90), math.radians(180)), False)
sketch4.addGeometry(Part.LineSegment(V(-8, 7, 0), V(-8, 2.9, 0)), False)
sketch4.addGeometry(Part.LineSegment(V(-7, -8, 0), V(-2.9, -8, 0)), False)
sketch4.addGeometry(Part.ArcOfCircle(Part.Circle(V(0, 0, 0), V(0, 0, 1), 8.5), math.radians(-160), math.radians(-110)), False)
sketch4.addGeometry(Part.LineSegment(V(-8, -2.9, 0), V(-8, -7, 0)), False)
sketch4.addGeometry(Part.ArcOfCircle(Part.Circle(V(-7, -7, 0), V(0, 0, 1), 1), math.radians(180), math.radians(270)), False)
sketch4.addConstraint(Sketcher.Constraint("Coincident", 0, 1, 1, 1))
sketch4.addConstraint(Sketcher.Constraint("Tangent", 1, 2, 2, 1))
sketch4.addConstraint(Sketcher.Constraint("Tangent", 2, 2, 3, 1))
sketch4.addConstraint(Sketcher.Constraint("Coincident", 3, 2, 0, 2))
sketch4.addConstraint(Sketcher.Constraint("Coincident", 4, 2, 5, 2))
sketch4.addConstraint(Sketcher.Constraint("Coincident", 5, 1, 6, 1))
sketch4.addConstraint(Sketcher.Constraint("Tangent", 6, 2, 7, 1))
sketch4.addConstraint(Sketcher.Constraint("Tangent", 7, 2, 4, 1))
sketch4.addConstraint(Sketcher.Constraint("Coincident", 8, 1, 9, 1))
sketch4.addConstraint(Sketcher.Constraint("Tangent", 9, 2, 10, 1))
sketch4.addConstraint(Sketcher.Constraint("Tangent", 10, 2, 11, 1))
sketch4.addConstraint(Sketcher.Constraint("Coincident", 11, 2, 8, 2))
sketch4.addConstraint(Sketcher.Constraint("Coincident", 12, 2, 13, 2))
sketch4.addConstraint(Sketcher.Constraint("Coincident", 13, 1, 14, 1))
sketch4.addConstraint(Sketcher.Constraint("Tangent", 14, 2, 15, 1))
sketch4.addConstraint(Sketcher.Constraint("Tangent", 15, 2, 12, 1))
sketch4.addConstraint(Sketcher.Constraint("Coincident", 16, 1, 17, 1))
sketch4.addConstraint(Sketcher.Constraint("Tangent", 17, 2, 18, 1))
sketch4.addConstraint(Sketcher.Constraint("Tangent", 18, 2, 19, 1))
sketch4.addConstraint(Sketcher.Constraint("Coincident", 19, 2, 16, 2))
sketch4.addConstraint(Sketcher.Constraint("Coincident", 20, 2, 21, 2))
sketch4.addConstraint(Sketcher.Constraint("Coincident", 21, 1, 22, 1))
sketch4.addConstraint(Sketcher.Constraint("Tangent", 22, 2, 23, 1))
sketch4.addConstraint(Sketcher.Constraint("Tangent", 23, 2, 20, 1))
sketch4.addConstraint(Sketcher.Constraint("Vertical", 1))
sketch4.addConstraint(Sketcher.Constraint("Horizontal", 3))
sketch4.addConstraint(Sketcher.Constraint("Vertical", 4))
sketch4.addConstraint(Sketcher.Constraint("Horizontal", 6))
sketch4.addConstraint(Sketcher.Constraint("Vertical", 9))
sketch4.addConstraint(Sketcher.Constraint("Vertical", 11))
sketch4.addConstraint(Sketcher.Constraint("Vertical", 12))
sketch4.addConstraint(Sketcher.Constraint("Vertical", 14))
sketch4.addConstraint(Sketcher.Constraint("Horizontal", 17))
sketch4.addConstraint(Sketcher.Constraint("Vertical", 19))
sketch4.addConstraint(Sketcher.Constraint("Horizontal", 20))
sketch4.addConstraint(Sketcher.Constraint("Vertical", 22))
sketch4.addConstraint(Sketcher.Constraint("Coincident", 0, 3, -1, 1))
sketch4.addConstraint(Sketcher.Constraint("Coincident", 5, 3, -1, 1))
sketch4.addConstraint(Sketcher.Constraint("Coincident", 8, 3, -1, 1))
sketch4.addConstraint(Sketcher.Constraint("Coincident", 13, 3, -1, 1))
sketch4.addConstraint(Sketcher.Constraint("Coincident", 16, 3, -1, 1))
sketch4.addConstraint(Sketcher.Constraint("Coincident", 21, 3, -1, 1))
sketch4.addConstraint(Sketcher.Constraint("Equal", 0, 5))
sketch4.addConstraint(Sketcher.Constraint("Equal", 2, 7))
sketch4.addConstraint(Sketcher.Constraint("Equal", 5, 8))
sketch4.addConstraint(Sketcher.Constraint("Equal", 8, 13))
sketch4.addConstraint(Sketcher.Constraint("Equal", 10, 15))
sketch4.addConstraint(Sketcher.Constraint("Equal", 13, 16))
sketch4.addConstraint(Sketcher.Constraint("Equal", 7, 18))
sketch4.addConstraint(Sketcher.Constraint("Equal", 16, 21))
sketch4.addConstraint(Sketcher.Constraint("Equal", 18, 23))
sketch4.addConstraint(Sketcher.Constraint("Symmetric", 10, 3, 15, 3, -1, 1))
sketch4.addConstraint(Sketcher.Constraint("Symmetric", 7, 3, 18, 3, -1, 1))
sketch4.addConstraint(Sketcher.Constraint("Symmetric", 2, 3, 23, 3, -1, 1))
sketch4.addConstraint(Sketcher.Constraint("Symmetric", 2, 3, 18, 3, -2))
sketch4.addConstraint(Sketcher.Constraint("PointOnObject", 10, 3, -2))
sketch4.addConstraint(Sketcher.Constraint("Equal", 20, 1))
sketch4.addConstraint(Sketcher.Constraint("Radius", 2, Q("1 mm")))
sketch4.addConstraint(Sketcher.Constraint("Radius", 10, Q("2 mm")))
sketch4.addConstraint(Sketcher.Constraint("Radius", 0, Q("8.5 mm")))
sketch4.addConstraint(Sketcher.Constraint("DistanceY", 2, 3, 10, 3, Q("3 mm")))
sketch4.addConstraint(Sketcher.Constraint("DistanceY", 7, 3, 10, 3, Q("17 mm")))
pad3 = doc.addObject("PartDesign::Pad", "Pad002")
body.addObject(pad3)
pad3.Profile = sketch4
pad3.Length = 12.7

sketch5 = doc.addObject("Sketcher::SketchObject", "Sketch004")
body.addObject(sketch5)
sketch5.AttachmentSupport = (doc.XY_Plane, [""])
sketch5.MapMode = "FlatFace"
sketch5.addGeometry(Part.Circle(V(0, 0, 0), V(0, 0, 1), 8), False)
sketch5.addConstraint(Sketcher.Constraint("Coincident", 0, 3, -1, 1))
sketch5.addConstraint(Sketcher.Constraint("Diameter", 0, Q("17 mm")))
pad4 = doc.addObject("PartDesign::Pad", "Pad003")
body.addObject(pad4)
pad4.Profile = sketch5
pad4.Length = 32.8

doc.recompute()
